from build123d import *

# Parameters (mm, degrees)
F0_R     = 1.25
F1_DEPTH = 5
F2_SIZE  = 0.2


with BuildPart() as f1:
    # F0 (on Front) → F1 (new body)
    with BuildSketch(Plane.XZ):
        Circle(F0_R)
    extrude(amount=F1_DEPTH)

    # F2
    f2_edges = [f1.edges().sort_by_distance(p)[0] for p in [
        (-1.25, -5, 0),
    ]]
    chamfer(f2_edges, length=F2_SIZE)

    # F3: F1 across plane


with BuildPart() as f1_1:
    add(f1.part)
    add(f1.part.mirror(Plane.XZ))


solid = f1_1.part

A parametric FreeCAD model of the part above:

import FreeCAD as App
import Part
import Sketcher


def edges_at(feature, points):
    """Names of the edges that pass closest to the given points."""
    edges = feature.Shape.Edges
    near = lambda p: min(range(len(edges)), key=lambda i: edges[i].distToShape(Part.Vertex(*p))[0])
    return sorted({f"Edge{near(p) + 1}" for p in points})

doc = App.newDocument("Part")
body = doc.addObject("PartDesign::Body", "Body")

sketch1 = body.newObject("Sketcher::SketchObject", "Sketch")
sketch1.AttachmentSupport = (doc.getObject("XZ_Plane"), [""])
sketch1.MapMode = "FlatFace"
sketch1.addGeometry(Part.Circle(App.Vector(0, 0, 0), App.Vector(0, 0, 1), 1.2), False)
sketch1.addConstraint(Sketcher.Constraint("Coincident", 0, 3, -1, 1))
sketch1.addConstraint(Sketcher.Constraint("Diameter", 0, 2.5))
pad1 = body.newObject("PartDesign::Pad", "Pad")
pad1.Profile = sketch1
pad1.Length = 5
doc.recompute()

chamfer = body.newObject("PartDesign::Chamfer", "Chamfer")
chamfer.Base = (pad1, edges_at(pad1, [(-1.25, -5, 0)]))
chamfer.Size = 0.2
body2 = doc.addObject("PartDesign::Body", "Body001")
doc.recompute()

body2.BaseFeature = body
doc.recompute()

mirroring = doc.addObject("Part::Mirroring", "Mirroring")
mirroring.Source = body
mirroring.Base = App.Vector(0, 0, 0)
mirroring.Normal = App.Vector(0, -1, 0)
body3 = doc.addObject("PartDesign::Body", "Body002")
body3.BaseFeature = mirroring
boolean = body2.newObject("PartDesign::Boolean", "Boolean")
boolean.Type = "Fuse"
boolean.addObjects([body3])
doc.recompute()
mirroring.Visibility = False

doc.recompute()
